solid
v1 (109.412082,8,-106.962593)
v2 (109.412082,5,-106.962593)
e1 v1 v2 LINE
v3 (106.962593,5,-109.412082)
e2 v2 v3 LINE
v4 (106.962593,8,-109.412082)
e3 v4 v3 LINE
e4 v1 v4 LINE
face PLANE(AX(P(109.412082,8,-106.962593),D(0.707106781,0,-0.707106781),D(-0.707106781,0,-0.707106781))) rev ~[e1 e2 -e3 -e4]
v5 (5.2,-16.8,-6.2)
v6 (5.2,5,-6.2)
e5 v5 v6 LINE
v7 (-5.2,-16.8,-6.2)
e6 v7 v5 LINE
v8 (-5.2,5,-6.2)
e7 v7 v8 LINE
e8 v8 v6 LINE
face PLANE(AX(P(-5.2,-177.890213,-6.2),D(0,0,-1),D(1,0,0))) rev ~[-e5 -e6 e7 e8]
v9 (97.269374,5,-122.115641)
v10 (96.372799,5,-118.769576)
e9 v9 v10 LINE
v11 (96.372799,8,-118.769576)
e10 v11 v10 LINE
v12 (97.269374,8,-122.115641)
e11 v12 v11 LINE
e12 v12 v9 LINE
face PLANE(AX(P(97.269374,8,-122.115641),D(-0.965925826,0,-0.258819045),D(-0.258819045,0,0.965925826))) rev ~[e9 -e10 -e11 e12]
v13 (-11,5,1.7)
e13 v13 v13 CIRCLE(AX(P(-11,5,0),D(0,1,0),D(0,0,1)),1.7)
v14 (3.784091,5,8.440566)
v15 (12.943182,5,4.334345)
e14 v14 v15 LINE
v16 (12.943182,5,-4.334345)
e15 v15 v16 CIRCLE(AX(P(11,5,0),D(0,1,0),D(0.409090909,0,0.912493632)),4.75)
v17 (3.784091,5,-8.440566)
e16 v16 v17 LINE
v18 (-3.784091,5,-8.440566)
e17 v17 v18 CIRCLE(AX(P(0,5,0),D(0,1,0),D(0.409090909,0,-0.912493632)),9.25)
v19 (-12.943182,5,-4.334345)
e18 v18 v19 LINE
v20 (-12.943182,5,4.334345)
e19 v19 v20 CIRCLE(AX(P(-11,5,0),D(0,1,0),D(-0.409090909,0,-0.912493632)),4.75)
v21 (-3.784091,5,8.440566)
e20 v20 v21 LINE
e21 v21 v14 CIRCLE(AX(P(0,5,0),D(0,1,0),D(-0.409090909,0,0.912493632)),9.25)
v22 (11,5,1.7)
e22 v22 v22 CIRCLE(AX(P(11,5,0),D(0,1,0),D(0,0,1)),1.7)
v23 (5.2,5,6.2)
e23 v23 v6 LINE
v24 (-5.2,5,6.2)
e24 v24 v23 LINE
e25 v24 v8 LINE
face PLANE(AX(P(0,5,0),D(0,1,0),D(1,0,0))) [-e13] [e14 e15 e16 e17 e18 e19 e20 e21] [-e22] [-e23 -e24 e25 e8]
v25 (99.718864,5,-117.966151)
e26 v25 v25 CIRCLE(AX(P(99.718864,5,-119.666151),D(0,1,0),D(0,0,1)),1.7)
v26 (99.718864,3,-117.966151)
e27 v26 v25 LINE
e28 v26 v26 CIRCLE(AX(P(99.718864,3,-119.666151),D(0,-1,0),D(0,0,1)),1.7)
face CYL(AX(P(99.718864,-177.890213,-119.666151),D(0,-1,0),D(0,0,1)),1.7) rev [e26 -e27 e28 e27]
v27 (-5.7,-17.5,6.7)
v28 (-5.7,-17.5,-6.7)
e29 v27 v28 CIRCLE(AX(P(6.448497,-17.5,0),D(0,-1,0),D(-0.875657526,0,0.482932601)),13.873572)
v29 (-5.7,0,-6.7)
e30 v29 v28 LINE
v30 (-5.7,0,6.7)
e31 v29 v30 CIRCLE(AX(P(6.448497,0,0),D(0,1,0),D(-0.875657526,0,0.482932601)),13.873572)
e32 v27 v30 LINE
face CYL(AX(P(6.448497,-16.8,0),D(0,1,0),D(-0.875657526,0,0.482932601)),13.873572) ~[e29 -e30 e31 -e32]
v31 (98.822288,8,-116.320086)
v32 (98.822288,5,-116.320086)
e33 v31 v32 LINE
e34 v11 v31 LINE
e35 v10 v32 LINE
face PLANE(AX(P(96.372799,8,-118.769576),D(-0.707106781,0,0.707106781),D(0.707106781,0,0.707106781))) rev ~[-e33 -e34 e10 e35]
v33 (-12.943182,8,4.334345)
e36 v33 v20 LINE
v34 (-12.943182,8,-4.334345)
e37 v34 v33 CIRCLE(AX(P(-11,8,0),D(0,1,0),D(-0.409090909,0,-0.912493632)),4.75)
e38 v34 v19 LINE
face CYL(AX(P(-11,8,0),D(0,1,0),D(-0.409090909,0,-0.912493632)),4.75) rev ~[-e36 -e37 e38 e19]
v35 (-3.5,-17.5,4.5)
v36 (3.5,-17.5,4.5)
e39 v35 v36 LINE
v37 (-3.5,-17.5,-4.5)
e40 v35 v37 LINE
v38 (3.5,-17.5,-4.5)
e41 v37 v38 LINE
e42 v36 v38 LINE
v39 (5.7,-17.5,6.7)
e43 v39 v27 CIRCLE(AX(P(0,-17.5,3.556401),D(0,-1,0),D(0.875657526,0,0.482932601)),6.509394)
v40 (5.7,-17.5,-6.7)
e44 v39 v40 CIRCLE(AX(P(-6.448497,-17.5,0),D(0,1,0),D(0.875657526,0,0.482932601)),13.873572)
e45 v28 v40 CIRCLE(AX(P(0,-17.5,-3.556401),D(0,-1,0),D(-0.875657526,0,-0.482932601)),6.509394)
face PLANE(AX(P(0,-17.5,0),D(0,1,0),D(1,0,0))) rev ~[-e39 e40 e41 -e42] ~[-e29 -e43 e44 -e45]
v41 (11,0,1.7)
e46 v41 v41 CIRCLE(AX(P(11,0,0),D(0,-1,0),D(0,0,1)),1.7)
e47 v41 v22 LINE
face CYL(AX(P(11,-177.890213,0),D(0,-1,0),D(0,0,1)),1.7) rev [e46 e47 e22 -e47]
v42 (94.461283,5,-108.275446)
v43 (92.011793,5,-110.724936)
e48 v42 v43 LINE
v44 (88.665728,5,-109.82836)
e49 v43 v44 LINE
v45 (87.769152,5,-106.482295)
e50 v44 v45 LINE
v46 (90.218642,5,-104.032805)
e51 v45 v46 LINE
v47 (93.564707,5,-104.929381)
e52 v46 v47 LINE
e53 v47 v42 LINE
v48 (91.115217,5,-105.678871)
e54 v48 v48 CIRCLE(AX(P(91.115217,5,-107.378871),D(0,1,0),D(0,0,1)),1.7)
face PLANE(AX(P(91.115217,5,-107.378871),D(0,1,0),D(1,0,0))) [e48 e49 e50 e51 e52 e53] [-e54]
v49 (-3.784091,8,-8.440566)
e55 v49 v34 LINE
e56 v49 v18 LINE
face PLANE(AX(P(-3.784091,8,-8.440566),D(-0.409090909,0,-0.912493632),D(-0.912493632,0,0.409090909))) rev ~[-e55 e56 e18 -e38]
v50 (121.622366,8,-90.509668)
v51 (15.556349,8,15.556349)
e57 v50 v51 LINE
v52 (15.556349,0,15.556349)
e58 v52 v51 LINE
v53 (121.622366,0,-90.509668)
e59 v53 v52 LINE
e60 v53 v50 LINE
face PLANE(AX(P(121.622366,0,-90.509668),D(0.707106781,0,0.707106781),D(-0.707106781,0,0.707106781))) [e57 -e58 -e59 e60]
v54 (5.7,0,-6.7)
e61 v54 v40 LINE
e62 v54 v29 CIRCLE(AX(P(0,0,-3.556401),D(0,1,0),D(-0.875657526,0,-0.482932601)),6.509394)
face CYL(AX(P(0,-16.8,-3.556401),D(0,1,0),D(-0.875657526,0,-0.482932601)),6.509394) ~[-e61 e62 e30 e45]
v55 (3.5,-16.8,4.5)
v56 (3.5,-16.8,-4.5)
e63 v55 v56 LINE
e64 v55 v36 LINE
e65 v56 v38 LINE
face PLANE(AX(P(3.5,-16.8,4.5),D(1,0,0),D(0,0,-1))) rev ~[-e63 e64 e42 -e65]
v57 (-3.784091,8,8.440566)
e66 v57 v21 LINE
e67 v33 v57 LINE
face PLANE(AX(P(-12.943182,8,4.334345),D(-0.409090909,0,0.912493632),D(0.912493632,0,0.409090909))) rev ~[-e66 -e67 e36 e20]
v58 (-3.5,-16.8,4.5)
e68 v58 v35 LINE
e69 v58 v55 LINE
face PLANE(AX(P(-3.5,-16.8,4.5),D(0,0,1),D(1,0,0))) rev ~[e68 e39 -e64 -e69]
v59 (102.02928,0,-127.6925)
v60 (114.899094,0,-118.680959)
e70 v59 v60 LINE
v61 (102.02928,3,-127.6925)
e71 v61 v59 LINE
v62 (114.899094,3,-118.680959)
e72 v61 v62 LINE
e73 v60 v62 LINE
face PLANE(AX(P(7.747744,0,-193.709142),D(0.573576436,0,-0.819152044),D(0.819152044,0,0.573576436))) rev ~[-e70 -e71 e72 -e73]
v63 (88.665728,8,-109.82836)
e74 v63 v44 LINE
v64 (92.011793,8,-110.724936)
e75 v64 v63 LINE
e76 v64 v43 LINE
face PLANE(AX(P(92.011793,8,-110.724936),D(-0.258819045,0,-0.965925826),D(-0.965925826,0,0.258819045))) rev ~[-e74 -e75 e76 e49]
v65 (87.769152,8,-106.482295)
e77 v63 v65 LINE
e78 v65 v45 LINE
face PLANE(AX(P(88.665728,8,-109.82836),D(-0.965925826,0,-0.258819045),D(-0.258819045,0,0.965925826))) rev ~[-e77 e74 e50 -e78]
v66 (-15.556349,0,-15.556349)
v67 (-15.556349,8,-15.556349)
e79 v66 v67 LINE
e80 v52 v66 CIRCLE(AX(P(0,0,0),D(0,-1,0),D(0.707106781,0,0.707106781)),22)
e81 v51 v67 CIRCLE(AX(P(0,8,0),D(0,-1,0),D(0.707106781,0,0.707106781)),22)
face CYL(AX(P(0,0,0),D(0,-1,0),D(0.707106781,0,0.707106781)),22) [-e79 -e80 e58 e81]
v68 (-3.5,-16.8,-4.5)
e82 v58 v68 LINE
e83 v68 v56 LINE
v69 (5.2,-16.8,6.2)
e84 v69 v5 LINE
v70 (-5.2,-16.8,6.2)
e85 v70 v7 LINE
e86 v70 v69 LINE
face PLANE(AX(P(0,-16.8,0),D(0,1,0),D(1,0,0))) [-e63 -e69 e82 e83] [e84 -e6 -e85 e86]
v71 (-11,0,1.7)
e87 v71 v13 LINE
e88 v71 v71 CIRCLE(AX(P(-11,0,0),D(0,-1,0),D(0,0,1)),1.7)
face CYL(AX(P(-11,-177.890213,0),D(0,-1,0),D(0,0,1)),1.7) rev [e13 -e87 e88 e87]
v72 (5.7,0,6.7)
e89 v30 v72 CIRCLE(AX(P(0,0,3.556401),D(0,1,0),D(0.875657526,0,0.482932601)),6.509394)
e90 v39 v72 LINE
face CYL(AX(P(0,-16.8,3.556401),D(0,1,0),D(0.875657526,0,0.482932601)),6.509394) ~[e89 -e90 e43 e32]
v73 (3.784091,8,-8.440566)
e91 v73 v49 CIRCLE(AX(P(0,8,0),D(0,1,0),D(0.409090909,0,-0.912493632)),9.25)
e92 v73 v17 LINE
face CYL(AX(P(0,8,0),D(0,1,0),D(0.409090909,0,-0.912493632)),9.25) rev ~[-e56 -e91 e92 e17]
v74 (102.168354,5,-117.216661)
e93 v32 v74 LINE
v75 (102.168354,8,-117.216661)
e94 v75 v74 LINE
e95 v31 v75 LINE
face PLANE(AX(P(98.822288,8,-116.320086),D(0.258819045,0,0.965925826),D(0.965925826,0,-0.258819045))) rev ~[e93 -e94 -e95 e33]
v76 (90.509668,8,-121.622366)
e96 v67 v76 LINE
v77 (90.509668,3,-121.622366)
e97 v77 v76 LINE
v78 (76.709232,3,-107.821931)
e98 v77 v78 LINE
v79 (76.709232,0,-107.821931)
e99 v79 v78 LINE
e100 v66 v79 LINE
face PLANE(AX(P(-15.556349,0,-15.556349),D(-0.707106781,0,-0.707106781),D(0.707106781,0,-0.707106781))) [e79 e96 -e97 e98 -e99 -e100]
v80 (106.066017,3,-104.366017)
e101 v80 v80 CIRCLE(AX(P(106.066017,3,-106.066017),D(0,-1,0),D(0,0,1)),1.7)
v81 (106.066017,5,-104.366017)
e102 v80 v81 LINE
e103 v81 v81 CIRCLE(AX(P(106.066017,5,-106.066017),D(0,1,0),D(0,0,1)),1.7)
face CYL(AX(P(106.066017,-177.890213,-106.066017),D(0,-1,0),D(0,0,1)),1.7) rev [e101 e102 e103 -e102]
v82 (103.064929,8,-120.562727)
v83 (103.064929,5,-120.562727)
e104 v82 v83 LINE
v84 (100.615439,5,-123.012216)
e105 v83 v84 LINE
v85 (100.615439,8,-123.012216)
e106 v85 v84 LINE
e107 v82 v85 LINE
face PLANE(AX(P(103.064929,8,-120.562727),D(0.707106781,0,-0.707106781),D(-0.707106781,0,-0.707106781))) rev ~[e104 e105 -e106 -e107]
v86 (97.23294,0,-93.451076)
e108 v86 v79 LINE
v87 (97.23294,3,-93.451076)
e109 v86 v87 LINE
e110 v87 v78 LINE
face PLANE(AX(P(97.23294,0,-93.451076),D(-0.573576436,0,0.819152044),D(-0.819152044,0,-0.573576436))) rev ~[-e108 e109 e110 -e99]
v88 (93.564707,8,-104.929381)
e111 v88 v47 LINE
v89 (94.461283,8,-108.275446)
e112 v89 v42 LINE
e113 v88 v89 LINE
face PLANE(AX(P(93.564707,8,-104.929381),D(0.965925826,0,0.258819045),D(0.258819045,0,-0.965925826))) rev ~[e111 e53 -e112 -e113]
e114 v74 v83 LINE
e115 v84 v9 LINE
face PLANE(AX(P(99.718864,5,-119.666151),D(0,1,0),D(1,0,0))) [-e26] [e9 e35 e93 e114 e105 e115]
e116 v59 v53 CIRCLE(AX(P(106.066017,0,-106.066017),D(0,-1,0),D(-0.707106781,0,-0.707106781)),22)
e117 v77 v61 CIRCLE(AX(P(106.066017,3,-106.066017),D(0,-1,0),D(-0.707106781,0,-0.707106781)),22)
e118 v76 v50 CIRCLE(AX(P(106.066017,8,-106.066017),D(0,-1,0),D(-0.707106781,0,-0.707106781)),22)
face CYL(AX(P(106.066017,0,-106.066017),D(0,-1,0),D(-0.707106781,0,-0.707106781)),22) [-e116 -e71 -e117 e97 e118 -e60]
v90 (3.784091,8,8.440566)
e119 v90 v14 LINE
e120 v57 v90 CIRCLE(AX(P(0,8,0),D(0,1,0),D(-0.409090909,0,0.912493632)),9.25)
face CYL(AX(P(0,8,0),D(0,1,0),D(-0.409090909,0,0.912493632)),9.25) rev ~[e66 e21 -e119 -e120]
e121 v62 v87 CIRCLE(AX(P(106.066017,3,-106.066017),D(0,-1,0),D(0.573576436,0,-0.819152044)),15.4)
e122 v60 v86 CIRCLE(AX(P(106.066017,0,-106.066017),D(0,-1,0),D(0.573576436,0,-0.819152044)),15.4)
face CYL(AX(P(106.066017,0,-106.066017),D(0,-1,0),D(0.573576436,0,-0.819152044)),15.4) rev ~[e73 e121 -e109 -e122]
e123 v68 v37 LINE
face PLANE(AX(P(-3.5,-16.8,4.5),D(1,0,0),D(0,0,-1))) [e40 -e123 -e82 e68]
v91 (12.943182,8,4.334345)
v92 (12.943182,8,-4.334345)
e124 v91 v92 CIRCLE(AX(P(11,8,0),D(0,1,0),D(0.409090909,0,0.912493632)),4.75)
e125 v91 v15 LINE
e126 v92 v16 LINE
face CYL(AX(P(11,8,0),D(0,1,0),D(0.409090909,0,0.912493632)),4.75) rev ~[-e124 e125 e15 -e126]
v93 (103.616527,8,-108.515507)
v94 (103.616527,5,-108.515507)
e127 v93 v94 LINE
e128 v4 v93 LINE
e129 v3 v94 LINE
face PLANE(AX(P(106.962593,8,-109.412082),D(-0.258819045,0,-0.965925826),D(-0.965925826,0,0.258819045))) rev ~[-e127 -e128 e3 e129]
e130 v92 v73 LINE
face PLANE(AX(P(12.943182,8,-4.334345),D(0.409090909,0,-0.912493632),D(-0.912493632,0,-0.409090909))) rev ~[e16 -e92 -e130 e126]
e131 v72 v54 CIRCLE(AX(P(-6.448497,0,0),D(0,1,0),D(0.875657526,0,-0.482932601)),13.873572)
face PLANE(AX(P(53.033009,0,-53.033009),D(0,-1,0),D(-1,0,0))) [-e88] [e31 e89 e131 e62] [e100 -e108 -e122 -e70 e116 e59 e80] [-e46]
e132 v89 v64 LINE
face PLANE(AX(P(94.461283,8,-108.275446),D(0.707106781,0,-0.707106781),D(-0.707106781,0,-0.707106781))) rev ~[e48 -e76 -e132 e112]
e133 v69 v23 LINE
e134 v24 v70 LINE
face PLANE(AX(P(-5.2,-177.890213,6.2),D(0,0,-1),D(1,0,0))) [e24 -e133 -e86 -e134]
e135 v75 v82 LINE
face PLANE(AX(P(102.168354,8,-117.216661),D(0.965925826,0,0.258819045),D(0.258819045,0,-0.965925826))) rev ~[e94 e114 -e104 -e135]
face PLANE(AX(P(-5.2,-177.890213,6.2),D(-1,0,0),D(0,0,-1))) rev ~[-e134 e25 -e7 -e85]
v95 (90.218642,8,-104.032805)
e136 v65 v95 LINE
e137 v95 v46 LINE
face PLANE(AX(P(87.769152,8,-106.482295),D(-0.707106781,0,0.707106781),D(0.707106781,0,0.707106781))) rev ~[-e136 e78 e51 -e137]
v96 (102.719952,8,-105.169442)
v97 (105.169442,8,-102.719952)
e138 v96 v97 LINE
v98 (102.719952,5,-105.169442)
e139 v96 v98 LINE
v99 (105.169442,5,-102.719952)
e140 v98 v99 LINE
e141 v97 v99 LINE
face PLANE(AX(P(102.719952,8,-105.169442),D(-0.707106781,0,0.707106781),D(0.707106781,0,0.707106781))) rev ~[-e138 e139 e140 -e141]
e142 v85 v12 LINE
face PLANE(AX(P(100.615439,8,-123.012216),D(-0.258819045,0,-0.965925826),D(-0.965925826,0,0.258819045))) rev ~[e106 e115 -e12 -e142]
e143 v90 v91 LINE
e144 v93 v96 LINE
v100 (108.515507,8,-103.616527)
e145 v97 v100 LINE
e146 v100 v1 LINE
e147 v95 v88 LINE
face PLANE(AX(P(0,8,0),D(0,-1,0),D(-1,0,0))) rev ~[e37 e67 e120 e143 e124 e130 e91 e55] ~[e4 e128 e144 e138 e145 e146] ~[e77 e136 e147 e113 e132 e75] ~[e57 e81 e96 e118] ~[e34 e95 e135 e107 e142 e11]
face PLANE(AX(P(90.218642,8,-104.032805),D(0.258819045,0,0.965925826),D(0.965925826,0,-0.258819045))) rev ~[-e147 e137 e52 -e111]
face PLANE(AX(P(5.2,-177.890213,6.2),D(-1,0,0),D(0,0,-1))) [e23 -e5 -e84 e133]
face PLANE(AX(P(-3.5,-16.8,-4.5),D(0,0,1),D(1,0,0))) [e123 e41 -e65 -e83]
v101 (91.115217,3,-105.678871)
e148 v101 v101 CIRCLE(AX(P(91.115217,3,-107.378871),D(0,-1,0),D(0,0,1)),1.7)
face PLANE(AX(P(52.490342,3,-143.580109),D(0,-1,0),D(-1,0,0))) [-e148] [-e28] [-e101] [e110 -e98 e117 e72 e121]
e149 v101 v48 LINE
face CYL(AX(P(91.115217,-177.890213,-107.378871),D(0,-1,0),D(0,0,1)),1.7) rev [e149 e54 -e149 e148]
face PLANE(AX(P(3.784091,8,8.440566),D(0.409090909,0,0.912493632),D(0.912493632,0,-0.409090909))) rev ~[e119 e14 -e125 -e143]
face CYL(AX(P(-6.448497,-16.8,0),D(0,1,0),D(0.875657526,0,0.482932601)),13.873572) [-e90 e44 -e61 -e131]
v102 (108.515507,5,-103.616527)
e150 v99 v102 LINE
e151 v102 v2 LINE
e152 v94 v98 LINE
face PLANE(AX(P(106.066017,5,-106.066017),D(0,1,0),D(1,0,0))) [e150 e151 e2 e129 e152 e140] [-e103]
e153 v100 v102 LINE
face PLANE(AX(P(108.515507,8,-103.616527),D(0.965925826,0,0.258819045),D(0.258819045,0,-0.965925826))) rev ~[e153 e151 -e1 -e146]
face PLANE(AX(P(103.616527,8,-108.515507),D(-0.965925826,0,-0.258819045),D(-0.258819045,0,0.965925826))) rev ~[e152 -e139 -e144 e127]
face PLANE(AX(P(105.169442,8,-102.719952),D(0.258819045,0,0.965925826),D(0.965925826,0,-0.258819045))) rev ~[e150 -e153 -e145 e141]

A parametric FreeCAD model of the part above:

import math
import FreeCAD as App
import Part
import Sketcher
from FreeCAD import Vector
Q = App.Units.Quantity


def add_polygon(sketch, points):
    """Adds a closed chain of lines whose ends are joined by coincident constraints."""
    first, n = sketch.GeometryCount, len(points)
    for a, b in zip(points, points[1:] + points[:1]):
        sketch.addGeometry(Part.LineSegment(App.Vector(*a, 0), App.Vector(*b, 0)), False)
    for i in range(n):
        sketch.addConstraint(Sketcher.Constraint("Coincident", first + i, 2, first + (i + 1) % n, 1))

doc = App.newDocument("Part")
params = doc.addObject("Spreadsheet::Sheet", "Params")
for row, (alias, value) in enumerate([
    ("sketch1_radius", "22 mm"),
    ("sketch1_length", "150 mm"),
    ("pad1_length", "8 mm"),
    ("sketch2_width", "10.4 mm"),
    ("sketch2_height", "12.4 mm"),
    ("pad2_length", "24.8 mm"),
    ("sketch3_diameter", "3.4 mm"),
    ("sketch3_width", "10.4 mm"),
    ("sketch3_height", "12.4 mm"),
    ("sketch4_width", "7 mm"),
    ("sketch4_height", "9 mm"),
    ("pad3_length", "0.7 mm"),
    ("sketch5_diameter", "3.4 mm"),
    ("sketch5_radius", "9.25 mm"),
    ("sketch5_radius2", "4.75 mm"),
    ("sketch5_width", "10.4 mm"),
    ("sketch5_height", "12.4 mm"),
    ("pocket2_length", "3 mm"),
    ("sketch6_diameter", "3.4 mm"),
    ("pocket3_length", "3 mm"),
    ("sketch7_radius", "15.4 mm"),
    ("pocket4_length", "3 mm"),
], start=1):
    params.set(f"A{row}", alias)
    params.set(f"B{row}", "=" + value)
    params.setAlias(f"B{row}", alias)

body = doc.addObject("PartDesign::Body", "Body")

# Sketch on XZ plane
sketch1 = body.newObject("Sketcher::SketchObject", "Sketch")
sketch1.AttachmentSupport = (doc.getObject("XZ_Plane"), [""])
sketch1.MapMode = "FlatFace"
sketch1.addGeometry(Part.LineSegment(Vector(91, -122, 0), Vector(-16, -16, 0)), False)
sketch1.addGeometry(Part.ArcOfCircle(Part.Circle(Vector(0, 0, 0), Vector(0, 0, 1), 22), math.radians(45), math.radians(225)), False)
sketch1.addGeometry(Part.LineSegment(Vector(16, 16, 0), Vector(122, -91, 0)), False)
sketch1.addGeometry(Part.ArcOfCircle(Part.Circle(Vector(106, -106, 0), Vector(0, 0, 1), 22), math.radians(-135), math.radians(45)), False)
sketch1.addConstraint(Sketcher.Constraint("Tangent", 0, 2, 1, 2))
sketch1.addConstraint(Sketcher.Constraint("Tangent", 1, 1, 2, 1))
sketch1.addConstraint(Sketcher.Constraint("Tangent", 2, 2, 3, 2))
sketch1.addConstraint(Sketcher.Constraint("Tangent", 3, 1, 0, 1))
sketch1.addConstraint(Sketcher.Constraint("Coincident", 1, 3, -1, 1))
sketch1.addConstraint(Sketcher.Constraint("Equal", 1, 3))
sketch1.addConstraint(Sketcher.Constraint("Radius", 1, Q("22 mm")))
sketch1.addConstraint(Sketcher.Constraint("Angle", 0, Q("135 deg")))
sketch1.addConstraint(Sketcher.Constraint("Distance", 0, Q("150 mm")))
sketch1.setExpression("Constraints[6]", "Params.sketch1_radius")
sketch1.setExpression("Constraints[8]", "Params.sketch1_length")
pad1 = body.newObject("PartDesign::Pad", "Pad")
pad1.Profile = sketch1
pad1.setExpression("Length", "Params.pad1_length")
pad1.Reversed = True

# Sketch on XZ plane
sketch2 = body.newObject("Sketcher::SketchObject", "Sketch001")
sketch2.AttachmentSupport = (doc.getObject("XZ_Plane"), [""])
sketch2.MapMode = "FlatFace"
sketch2.AttachmentOffset = App.Placement(Vector(0, 0, -8), App.Rotation())
sketch2.addGeometry(Part.ArcOfCircle(Part.Circle(Vector(0, -4, 0), Vector(0, 0, 1), 7), math.radians(-151), math.radians(-29)), False)  # 0
sketch2.addGeometry(Part.ArcOfCircle(Part.Circle(Vector(6, 0, 0), Vector(0, 0, 1), 14), math.radians(151), math.radians(209)), False)  # 1
sketch2.addGeometry(Part.ArcOfCircle(Part.Circle(Vector(0, 4, 0), Vector(0, 0, 1), 7), math.radians(29), math.radians(151)), False)  # 2
sketch2.addGeometry(Part.ArcOfCircle(Part.Circle(Vector(-6, 0, 0), Vector(0, 0, 1), 14), math.radians(-29), math.radians(29)), False)  # 3
add_polygon(sketch2, [(-5, 6), (-5, -6), (5, -6), (5, 6)])  # lines 4-7
sketch2.addConstraint(Sketcher.Constraint("Tangent", 0, 1, 1, 2))
sketch2.addConstraint(Sketcher.Constraint("Tangent", 1, 1, 2, 2))
sketch2.addConstraint(Sketcher.Constraint("Tangent", 2, 1, 3, 2))
sketch2.addConstraint(Sketcher.Constraint("Tangent", 3, 1, 0, 2))
sketch2.addConstraint(Sketcher.Constraint("Vertical", 4))
sketch2.addConstraint(Sketcher.Constraint("Horizontal", 5))
sketch2.addConstraint(Sketcher.Constraint("Vertical", 6))
sketch2.addConstraint(Sketcher.Constraint("Horizontal", 7))
sketch2.addConstraint(Sketcher.Constraint("Equal", 0, 2))
sketch2.addConstraint(Sketcher.Constraint("Equal", 1, 3))
sketch2.addConstraint(Sketcher.Constraint("Symmetric", 0, 3, 2, 3, -1, 1))
sketch2.addConstraint(Sketcher.Constraint("Symmetric", 4, 2, 6, 2, -1, 1))
sketch2.addConstraint(Sketcher.Constraint("PointOnObject", 0, 3, -2))
sketch2.addConstraint(Sketcher.Constraint("DistanceX", 5, 1, 5, 2, Q("10.4 mm")))
sketch2.addConstraint(Sketcher.Constraint("DistanceY", 4, 2, 4, 1, Q("12.4 mm")))
sketch2.addConstraint(Sketcher.Constraint("DistanceX", 0, 1, -1, 1, Q("5.7 mm")))
sketch2.addConstraint(Sketcher.Constraint("DistanceY", 0, 1, -1, 1, Q("6.7 mm")))
sketch2.addConstraint(Sketcher.Constraint("Radius", 1, Q("13.873572 mm")))
sketch2.setExpression("Constraints[17]", "Params.sketch2_width")
sketch2.setExpression("Constraints[18]", "Params.sketch2_height")
pad2 = body.newObject("PartDesign::Pad", "Pad001")
pad2.Profile = sketch2
pad2.setExpression("Length", "Params.pad2_length")

# Sketch on XZ plane
sketch3 = body.newObject("Sketcher::SketchObject", "Sketch002")
sketch3.AttachmentSupport = (doc.getObject("XZ_Plane"), [""])
sketch3.MapMode = "FlatFace"
sketch3.AttachmentOffset = App.Placement(Vector(0, 0, -5), App.Rotation())
add_polygon(sketch3, [(-5.2, -6.2), (-5.2, 6.2), (5.2, 6.2), (5.2, -6.2)])  # lines 0-3
sketch3.addGeometry(Part.Circle(Vector(106.1, -106.1, 0), Vector(0, 0, 1), 1.7), False)  # 4
sketch3.addGeometry(Part.Circle(Vector(99.7, -119.7, 0), Vector(0, 0, 1), 1.7), False)  # 5
sketch3.addGeometry(Part.Circle(Vector(91.1, -107.4, 0), Vector(0, 0, 1), 1.7), False)  # 6
sketch3.addGeometry(Part.Circle(Vector(11, 0, 0), Vector(0, 0, 1), 1.7), False)  # 7
sketch3.addGeometry(Part.Circle(Vector(-11, 0, 0), Vector(0, 0, 1), 1.7), False)  # 8
sketch3.addConstraint(Sketcher.Constraint("Vertical", 0))
sketch3.addConstraint(Sketcher.Constraint("Horizontal", 1))
sketch3.addConstraint(Sketcher.Constraint("Vertical", 2))
sketch3.addConstraint(Sketcher.Constraint("Horizontal", 3))
sketch3.addConstraint(Sketcher.Constraint("Equal", 4, 5))
sketch3.addConstraint(Sketcher.Constraint("Equal", 5, 6))
sketch3.addConstraint(Sketcher.Constraint("Equal", 6, 7))
sketch3.addConstraint(Sketcher.Constraint("Equal", 7, 8))
sketch3.addConstraint(Sketcher.Constraint("Symmetric", 7, 3, 8, 3, -1, 1))
sketch3.addConstraint(Sketcher.Constraint("Symmetric", 0, 2, 2, 2, -1, 1))
sketch3.addConstraint(Sketcher.Constraint("PointOnObject", 7, 3, -1))
sketch3.addConstraint(Sketcher.Constraint("Diameter", 4, Q("3.4 mm")))
sketch3.addConstraint(Sketcher.Constraint("DistanceX", 1, 1, 1, 2, Q("10.4 mm")))
sketch3.addConstraint(Sketcher.Constraint("DistanceY", 0, 1, 0, 2, Q("12.4 mm")))
sketch3.addConstraint(Sketcher.Constraint("DistanceX", -1, 1, 7, 3, Q("11 mm")))
sketch3.addConstraint(Sketcher.Constraint("DistanceX", 6, 3, 4, 3, Q("14.9508 mm")))
sketch3.addConstraint(Sketcher.Constraint("DistanceY", 5, 3, -1, 1, Q("119.666151 mm")))
sketch3.addConstraint(Sketcher.Constraint("DistanceY", 6, 3, -1, 1, Q("107.378871 mm")))
sketch3.addConstraint(Sketcher.Constraint("DistanceX", -1, 1, 4, 3, Q("106.066017 mm")))
sketch3.addConstraint(Sketcher.Constraint("DistanceY", 4, 3, -1, 1, Q("106.066017 mm")))
sketch3.addConstraint(Sketcher.Constraint("DistanceX", -1, 1, 5, 3, Q("99.718864 mm")))
sketch3.setExpression("Constraints[15]", "Params.sketch3_diameter")
sketch3.setExpression("Constraints[16]", "Params.sketch3_width")
sketch3.setExpression("Constraints[17]", "Params.sketch3_height")
pocket1 = body.newObject("PartDesign::Pocket", "Pocket")
pocket1.Profile = sketch3
pocket1.Type = "ThroughAll"
pocket1.Midplane = True

# Sketch on XZ plane
sketch4 = body.newObject("Sketcher::SketchObject", "Sketch003")
sketch4.AttachmentSupport = (doc.getObject("XZ_Plane"), [""])
sketch4.MapMode = "FlatFace"
sketch4.AttachmentOffset = App.Placement(Vector(0, 0, 16.8), App.Rotation())
sketch4.addGeometry(Part.ArcOfCircle(Part.Circle(Vector(6, 0, 0), Vector(0, 0, 1), 14), math.radians(151), math.radians(209)), False)  # 0
sketch4.addGeometry(Part.ArcOfCircle(Part.Circle(Vector(0, 4, 0), Vector(0, 0, 1), 7), math.radians(29), math.radians(151)), False)  # 1
sketch4.addGeometry(Part.ArcOfCircle(Part.Circle(Vector(-6, 0, 0), Vector(0, 0, 1), 14), math.radians(-29), math.radians(29)), False)  # 2
sketch4.addGeometry(Part.ArcOfCircle(Part.Circle(Vector(0, -4, 0), Vector(0, 0, 1), 7), math.radians(-151), math.radians(-29)), False)  # 3
add_polygon(sketch4, [(4, 4), (-4, 4), (-4, -4), (4, -4)])  # lines 4-7
sketch4.addConstraint(Sketcher.Constraint("Tangent", 0, 1, 1, 2))
sketch4.addConstraint(Sketcher.Constraint("Tangent", 1, 1, 2, 2))
sketch4.addConstraint(Sketcher.Constraint("Tangent", 2, 1, 3, 2))
sketch4.addConstraint(Sketcher.Constraint("Tangent", 3, 1, 0, 2))
sketch4.addConstraint(Sketcher.Constraint("Horizontal", 4))
sketch4.addConstraint(Sketcher.Constraint("Vertical", 5))
sketch4.addConstraint(Sketcher.Constraint("Horizontal", 6))
sketch4.addConstraint(Sketcher.Constraint("Vertical", 7))
sketch4.addConstraint(Sketcher.Constraint("Equal", 0, 2))
sketch4.addConstraint(Sketcher.Constraint("Equal", 1, 3))
sketch4.addConstraint(Sketcher.Constraint("Symmetric", 0, 3, 2, 3, -1, 1))
sketch4.addConstraint(Sketcher.Constraint("Symmetric", 4, 2, 6, 2, -1, 1))
sketch4.addConstraint(Sketcher.Constraint("PointOnObject", 0, 3, -1))
sketch4.addConstraint(Sketcher.Constraint("DistanceX", 4, 2, 4, 1, Q("7 mm")))
sketch4.addConstraint(Sketcher.Constraint("DistanceY", 5, 2, 5, 1, Q("9 mm")))
sketch4.addConstraint(Sketcher.Constraint("DistanceX", 0, 1, -1, 1, Q("5.7 mm")))
sketch4.addConstraint(Sketcher.Constraint("DistanceY", -1, 1, 0, 1, Q("6.7 mm")))
sketch4.addConstraint(Sketcher.Constraint("Radius", 0, Q("13.873572 mm")))
sketch4.setExpression("Constraints[17]", "Params.sketch4_width")
sketch4.setExpression("Constraints[18]", "Params.sketch4_height")
pad3 = body.newObject("PartDesign::Pad", "Pad002")
pad3.Profile = sketch4
pad3.setExpression("Length", "Params.pad3_length")

# Sketch on XZ plane
sketch5 = body.newObject("Sketcher::SketchObject", "Sketch004")
sketch5.AttachmentSupport = (doc.getObject("XZ_Plane"), [""])
sketch5.MapMode = "FlatFace"
sketch5.AttachmentOffset = App.Placement(Vector(0, 0, -8), App.Rotation())
sketch5.addGeometry(Part.ArcOfCircle(Part.Circle(Vector(0, 0, 0), Vector(0, 0, 1), 9.2), math.radians(66), math.radians(114)), False)  # 0
sketch5.addGeometry(Part.LineSegment(Vector(3.8, 8.4, 0), Vector(12.9, 4.3, 0)), False)  # 1
sketch5.addGeometry(Part.ArcOfCircle(Part.Circle(Vector(11, 0, 0), Vector(0, 0, 1), 4.8), math.radians(-66), math.radians(66)), False)  # 2
sketch5.addGeometry(Part.LineSegment(Vector(12.9, -4.3, 0), Vector(3.8, -8.4, 0)), False)  # 3
sketch5.addGeometry(Part.ArcOfCircle(Part.Circle(Vector(0, 0, 0), Vector(0, 0, 1), 9.2), math.radians(-114), math.radians(-66)), False)  # 4
sketch5.addGeometry(Part.LineSegment(Vector(-3.8, -8.4, 0), Vector(-12.9, -4.3, 0)), False)  # 5
sketch5.addGeometry(Part.ArcOfCircle(Part.Circle(Vector(-11, 0, 0), Vector(0, 0, 1), 4.8), math.radians(114), math.radians(246)), False)  # 6
sketch5.addGeometry(Part.LineSegment(Vector(-12.9, 4.3, 0), Vector(-3.8, 8.4, 0)), False)  # 7
sketch5.addGeometry(Part.Circle(Vector(-11, 0, 0), Vector(0, 0, 1), 1.7), False)  # 8
add_polygon(sketch5, [(5.2, 6.2), (-5.2, 6.2), (-5.2, -6.2), (5.2, -6.2)])  # lines 9-12
sketch5.addGeometry(Part.Circle(Vector(11, 0, 0), Vector(0, 0, 1), 1.7), False)  # 13
sketch5.addConstraint(Sketcher.Constraint("Tangent", 0, 1, 1, 1))
sketch5.addConstraint(Sketcher.Constraint("Tangent", 1, 2, 2, 2))
sketch5.addConstraint(Sketcher.Constraint("Tangent", 2, 1, 3, 1))
sketch5.addConstraint(Sketcher.Constraint("Tangent", 3, 2, 4, 2))
sketch5.addConstraint(Sketcher.Constraint("Tangent", 4, 1, 5, 1))
sketch5.addConstraint(Sketcher.Constraint("Tangent", 5, 2, 6, 2))
sketch5.addConstraint(Sketcher.Constraint("Tangent", 6, 1, 7, 1))
sketch5.addConstraint(Sketcher.Constraint("Tangent", 7, 2, 0, 2))
sketch5.addConstraint(Sketcher.Constraint("Horizontal", 9))
sketch5.addConstraint(Sketcher.Constraint("Vertical", 10))
sketch5.addConstraint(Sketcher.Constraint("Horizontal", 11))
sketch5.addConstraint(Sketcher.Constraint("Vertical", 12))
sketch5.addConstraint(Sketcher.Constraint("Coincident", 0, 3, -1, 1))
sketch5.addConstraint(Sketcher.Constraint("Coincident", 4, 3, -1, 1))
sketch5.addConstraint(Sketcher.Constraint("Coincident", 8, 3, 6, 3))
sketch5.addConstraint(Sketcher.Constraint("Coincident", 13, 3, 2, 3))
sketch5.addConstraint(Sketcher.Constraint("Equal", 0, 4))
sketch5.addConstraint(Sketcher.Constraint("Equal", 2, 6))
sketch5.addConstraint(Sketcher.Constraint("Equal", 8, 13))
sketch5.addConstraint(Sketcher.Constraint("Symmetric", 2, 3, 6, 3, -1, 1))
sketch5.addConstraint(Sketcher.Constraint("Symmetric", 9, 2, 11, 2, -1, 1))
sketch5.addConstraint(Sketcher.Constraint("PointOnObject", 2, 3, -1))
sketch5.addConstraint(Sketcher.Constraint("Diameter", 8, Q("3.4 mm")))
sketch5.addConstraint(Sketcher.Constraint("Radius", 0, Q("9.25 mm")))
sketch5.addConstraint(Sketcher.Constraint("Radius", 2, Q("4.75 mm")))
sketch5.addConstraint(Sketcher.Constraint("DistanceX", 9, 2, 9, 1, Q("10.4 mm")))
sketch5.addConstraint(Sketcher.Constraint("DistanceY", 10, 2, 10, 1, Q("12.4 mm")))
sketch5.addConstraint(Sketcher.Constraint("DistanceX", -1, 1, 2, 3, Q("11 mm")))
sketch5.setExpression("Constraints[26]", "Params.sketch5_diameter")
sketch5.setExpression("Constraints[27]", "Params.sketch5_radius")
sketch5.setExpression("Constraints[28]", "Params.sketch5_radius2")
sketch5.setExpression("Constraints[29]", "Params.sketch5_width")
sketch5.setExpression("Constraints[30]", "Params.sketch5_height")
pocket2 = body.newObject("PartDesign::Pocket", "Pocket001")
pocket2.Profile = sketch5
pocket2.setExpression("Length", "Params.pocket2_length")
pocket2.Reversed = True

# Sketch on XZ plane
sketch6 = body.newObject("Sketcher::SketchObject", "Sketch005")
sketch6.AttachmentSupport = (doc.getObject("XZ_Plane"), [""])
sketch6.MapMode = "FlatFace"
sketch6.AttachmentOffset = App.Placement(Vector(0, 0, -8), App.Rotation())
add_polygon(sketch6, [(102.2, -117.2), (103.1, -120.6), (100.6, -123), (97.3, -122.1), (96.4, -118.8), (98.8, -116.3)])  # lines 0-5
sketch6.addGeometry(Part.Circle(Vector(99.7, -119.7, 0), Vector(0, 0, 1), 1.7), False)  # 6
add_polygon(sketch6, [(88.7, -109.8), (87.8, -106.5), (90.2, -104), (93.6, -104.9), (94.5, -108.3), (92, -110.7)])  # lines 7-12
sketch6.addGeometry(Part.Circle(Vector(91.1, -107.4, 0), Vector(0, 0, 1), 1.7), False)  # 13
add_polygon(sketch6, [(108.5, -103.6), (109.4, -107), (107, -109.4), (103.6, -108.5), (102.7, -105.2), (105.2, -102.7)])  # lines 14-19
sketch6.addGeometry(Part.Circle(Vector(106.1, -106.1, 0), Vector(0, 0, 1), 1.7), False)  # 20
sketch6.addConstraint(Sketcher.Constraint("Equal", 6, 13))
sketch6.addConstraint(Sketcher.Constraint("Equal", 13, 20))
sketch6.addConstraint(Sketcher.Constraint("Parallel", 0, 3))
sketch6.addConstraint(Sketcher.Constraint("Parallel", 1, 4))
sketch6.addConstraint(Sketcher.Constraint("Parallel", 2, 5))
sketch6.addConstraint(Sketcher.Constraint("Parallel", 3, 7))
sketch6.addConstraint(Sketcher.Constraint("Parallel", 4, 8))
sketch6.addConstraint(Sketcher.Constraint("Parallel", 5, 9))
sketch6.addConstraint(Sketcher.Constraint("Parallel", 7, 10))
sketch6.addConstraint(Sketcher.Constraint("Parallel", 8, 11))
sketch6.addConstraint(Sketcher.Constraint("Parallel", 9, 12))
sketch6.addConstraint(Sketcher.Constraint("Parallel", 10, 14))
sketch6.addConstraint(Sketcher.Constraint("Parallel", 11, 15))
sketch6.addConstraint(Sketcher.Constraint("Parallel", 12, 16))
sketch6.addConstraint(Sketcher.Constraint("Parallel", 14, 17))
sketch6.addConstraint(Sketcher.Constraint("Parallel", 15, 18))
sketch6.addConstraint(Sketcher.Constraint("Parallel", 16, 19))
sketch6.addConstraint(Sketcher.Constraint("Equal", 0, 1))
sketch6.addConstraint(Sketcher.Constraint("Equal", 1, 2))
sketch6.addConstraint(Sketcher.Constraint("Equal", 2, 3))
sketch6.addConstraint(Sketcher.Constraint("Equal", 5, 7))
sketch6.addConstraint(Sketcher.Constraint("Equal", 7, 8))
sketch6.addConstraint(Sketcher.Constraint("Equal", 8, 9))
sketch6.addConstraint(Sketcher.Constraint("Equal", 9, 10))
sketch6.addConstraint(Sketcher.Constraint("Equal", 12, 14))
sketch6.addConstraint(Sketcher.Constraint("Equal", 14, 15))
sketch6.addConstraint(Sketcher.Constraint("Equal", 15, 16))
sketch6.addConstraint(Sketcher.Constraint("Equal", 16, 17))
sketch6.addConstraint(Sketcher.Constraint("Diameter", 6, Q("3.4 mm")))
sketch6.addConstraint(Sketcher.Constraint("Angle", 0, Q("-75 deg")))
sketch6.addConstraint(Sketcher.Constraint("Angle", 1, Q("-135 deg")))
sketch6.addConstraint(Sketcher.Constraint("Angle", 2, Q("165 deg")))
sketch6.addConstraint(Sketcher.Constraint("Distance", 0, Q("3.464102 mm")))
sketch6.addConstraint(Sketcher.Constraint("DistanceX", -1, 1, 3, 2, Q("96.372799 mm")))
sketch6.addConstraint(Sketcher.Constraint("DistanceX", 13, 3, 20, 3, Q("14.9508 mm")))
sketch6.addConstraint(Sketcher.Constraint("DistanceY", 1, 2, 20, 3, Q("16.946199 mm")))
sketch6.addConstraint(Sketcher.Constraint("DistanceX", 7, 2, 5, 2, Q("14.399202 mm")))
sketch6.addConstraint(Sketcher.Constraint("DistanceX", 10, 2, 14, 2, Q("14.9508 mm")))
sketch6.addConstraint(Sketcher.Constraint("DistanceY", 6, 3, -1, 1, Q("119.666151 mm")))
sketch6.addConstraint(Sketcher.Constraint("DistanceY", 13, 3, -1, 1, Q("107.378871 mm")))
sketch6.addConstraint(Sketcher.Constraint("DistanceY", 2, 2, -1, 1, Q("122.115641 mm")))
sketch6.addConstraint(Sketcher.Constraint("DistanceY", 9, 2, -1, 1, Q("104.929381 mm")))
sketch6.addConstraint(Sketcher.Constraint("DistanceY", 17, 2, -1, 1, Q("105.169442 mm")))
sketch6.addConstraint(Sketcher.Constraint("DistanceX", 0, 2, 20, 3, Q("3.001088 mm")))
sketch6.addConstraint(Sketcher.Constraint("DistanceX", 2, 2, 6, 3, Q("2.44949 mm")))
sketch6.setExpression("Constraints[46]", "Params.sketch6_diameter")
pocket3 = body.newObject("PartDesign::Pocket", "Pocket002")
pocket3.Profile = sketch6
pocket3.setExpression("Length", "Params.pocket3_length")
pocket3.Reversed = True

# Sketch on XZ plane
sketch7 = body.newObject("Sketcher::SketchObject", "Sketch006")
sketch7.AttachmentSupport = (doc.getObject("XZ_Plane"), [""])
sketch7.MapMode = "FlatFace"
sketch7.addGeometry(Part.LineSegment(Vector(-10, -168, 0), Vector(97, -93, 0)), False)
sketch7.addGeometry(Part.ArcOfCircle(Part.Circle(Vector(106, -106, 0), Vector(0, 0, 1), 15), math.radians(-55), math.radians(125)), False)
sketch7.addGeometry(Part.LineSegment(Vector(115, -119, 0), Vector(8, -194, 0)), False)
sketch7.addGeometry(Part.ArcOfCircle(Part.Circle(Vector(-1, -181, 0), Vector(0, 0, 1), 15), math.radians(125), math.radians(305)), False)
sketch7.addConstraint(Sketcher.Constraint("Tangent", 0, 2, 1, 2))
sketch7.addConstraint(Sketcher.Constraint("Tangent", 1, 1, 2, 1))
sketch7.addConstraint(Sketcher.Constraint("Tangent", 2, 2, 3, 2))
sketch7.addConstraint(Sketcher.Constraint("Tangent", 3, 1, 0, 1))
sketch7.addConstraint(Sketcher.Constraint("Equal", 1, 3))
sketch7.addConstraint(Sketcher.Constraint("Radius", 1, Q("15.4 mm")))
sketch7.addConstraint(Sketcher.Constraint("Angle", 0, Q("35 deg")))
sketch7.addConstraint(Sketcher.Constraint("DistanceY", 3, 3, -1, 1, Q("181.0942 mm")))
sketch7.addConstraint(Sketcher.Constraint("DistanceY", 3, 1, 1, 1, Q("49.7983 mm")))
sketch7.addConstraint(Sketcher.Constraint("DistanceX", -1, 1, 0, 2, Q("97.23294 mm")))
sketch7.setExpression("Constraints[5]", "Params.sketch7_radius")
pocket4 = body.newObject("PartDesign::Pocket", "Pocket003")
pocket4.Profile = sketch7
pocket4.setExpression("Length", "Params.pocket4_length")

doc.recompute()
